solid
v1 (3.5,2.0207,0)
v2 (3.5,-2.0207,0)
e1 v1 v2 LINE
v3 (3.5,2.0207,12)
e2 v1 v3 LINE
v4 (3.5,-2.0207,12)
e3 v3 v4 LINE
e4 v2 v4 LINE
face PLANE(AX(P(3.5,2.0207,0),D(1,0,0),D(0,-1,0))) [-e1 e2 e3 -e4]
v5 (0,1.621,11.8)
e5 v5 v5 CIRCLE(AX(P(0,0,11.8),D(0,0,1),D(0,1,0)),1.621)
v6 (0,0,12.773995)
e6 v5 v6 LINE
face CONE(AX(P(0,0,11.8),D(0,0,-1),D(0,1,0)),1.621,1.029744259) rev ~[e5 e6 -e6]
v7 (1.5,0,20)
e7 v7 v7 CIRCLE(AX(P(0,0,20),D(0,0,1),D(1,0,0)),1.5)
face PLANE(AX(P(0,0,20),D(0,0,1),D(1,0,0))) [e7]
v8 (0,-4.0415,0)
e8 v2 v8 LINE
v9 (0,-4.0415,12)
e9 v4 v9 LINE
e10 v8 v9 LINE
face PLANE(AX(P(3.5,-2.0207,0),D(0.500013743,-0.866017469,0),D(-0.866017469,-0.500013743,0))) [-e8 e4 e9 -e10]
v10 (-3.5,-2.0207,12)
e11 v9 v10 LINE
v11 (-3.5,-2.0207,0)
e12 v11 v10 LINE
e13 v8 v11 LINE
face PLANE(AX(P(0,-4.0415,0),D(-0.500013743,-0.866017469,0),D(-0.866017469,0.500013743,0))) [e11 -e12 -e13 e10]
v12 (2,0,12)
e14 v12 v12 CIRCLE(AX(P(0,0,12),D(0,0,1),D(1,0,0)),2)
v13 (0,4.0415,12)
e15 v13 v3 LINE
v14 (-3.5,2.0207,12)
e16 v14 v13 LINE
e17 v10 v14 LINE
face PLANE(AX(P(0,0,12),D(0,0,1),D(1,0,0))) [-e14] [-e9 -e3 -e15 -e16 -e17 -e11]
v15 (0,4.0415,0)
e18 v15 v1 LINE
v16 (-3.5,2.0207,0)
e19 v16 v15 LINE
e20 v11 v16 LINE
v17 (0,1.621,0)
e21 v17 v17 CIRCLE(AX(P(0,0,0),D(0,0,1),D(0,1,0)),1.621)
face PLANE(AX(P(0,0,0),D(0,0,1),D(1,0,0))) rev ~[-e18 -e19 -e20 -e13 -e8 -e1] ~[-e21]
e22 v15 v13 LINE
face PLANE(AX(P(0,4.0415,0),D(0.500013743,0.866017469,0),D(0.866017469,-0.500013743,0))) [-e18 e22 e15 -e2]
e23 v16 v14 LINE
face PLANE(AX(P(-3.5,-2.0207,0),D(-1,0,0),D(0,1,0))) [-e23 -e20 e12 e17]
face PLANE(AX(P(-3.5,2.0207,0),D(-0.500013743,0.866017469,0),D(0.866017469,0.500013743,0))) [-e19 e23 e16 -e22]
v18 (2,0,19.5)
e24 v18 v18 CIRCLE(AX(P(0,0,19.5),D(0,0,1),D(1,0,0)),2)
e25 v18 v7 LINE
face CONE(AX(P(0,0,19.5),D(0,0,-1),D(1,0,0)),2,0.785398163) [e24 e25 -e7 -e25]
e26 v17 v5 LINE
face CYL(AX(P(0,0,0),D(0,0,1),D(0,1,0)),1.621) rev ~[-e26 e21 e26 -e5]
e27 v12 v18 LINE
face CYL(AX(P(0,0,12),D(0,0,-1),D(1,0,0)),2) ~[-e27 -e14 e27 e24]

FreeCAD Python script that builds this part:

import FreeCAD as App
import Part
import Sketcher
Q = App.Units.Quantity


def edges_at(feature, points):
    """Names of the edges that pass closest to the given points."""
    edges = feature.Shape.Edges
    near = lambda p: min(range(len(edges)), key=lambda i: edges[i].distToShape(Part.Vertex(*p))[0])
    return sorted({f"Edge{near(p) + 1}" for p in points})

doc = App.newDocument("Part")
body = doc.addObject("PartDesign::Body", "Body")

# Sketch on XY plane
sketch1 = body.newObject("Sketcher::SketchObject", "Sketch")
sketch1.AttachmentSupport = (doc.getObject("XY_Plane"), [""])
sketch1.MapMode = "FlatFace"
sketch1.addGeometry(Part.LineSegment(App.Vector(3.5, -2, 0), App.Vector(3.5, 2, 0)), False)
sketch1.addGeometry(Part.LineSegment(App.Vector(3.5, 2, 0), App.Vector(0, 4, 0)), False)
sketch1.addGeometry(Part.LineSegment(App.Vector(0, 4, 0), App.Vector(-3.5, 2, 0)), False)
sketch1.addGeometry(Part.LineSegment(App.Vector(-3.5, 2, 0), App.Vector(-3.5, -2, 0)), False)
sketch1.addGeometry(Part.LineSegment(App.Vector(-3.5, -2, 0), App.Vector(0, -4, 0)), False)
sketch1.addGeometry(Part.LineSegment(App.Vector(0, -4, 0), App.Vector(3.5, -2, 0)), False)
sketch1.addConstraint(Sketcher.Constraint("Coincident", 0, 2, 1, 1))
sketch1.addConstraint(Sketcher.Constraint("Coincident", 1, 2, 2, 1))
sketch1.addConstraint(Sketcher.Constraint("Coincident", 2, 2, 3, 1))
sketch1.addConstraint(Sketcher.Constraint("Coincident", 3, 2, 4, 1))
sketch1.addConstraint(Sketcher.Constraint("Coincident", 4, 2, 5, 1))
sketch1.addConstraint(Sketcher.Constraint("Coincident", 5, 2, 0, 1))
sketch1.addConstraint(Sketcher.Constraint("Vertical", 0))
sketch1.addConstraint(Sketcher.Constraint("Vertical", 3))
sketch1.addConstraint(Sketcher.Constraint("Symmetric", 0, 2, 3, 2, -1, 1))
sketch1.addConstraint(Sketcher.Constraint("Symmetric", 1, 2, 4, 2, -1, 1))
sketch1.addConstraint(Sketcher.Constraint("PointOnObject", 1, 2, -2))
sketch1.addConstraint(Sketcher.Constraint("Parallel", 2, 5))
sketch1.addConstraint(Sketcher.Constraint("Horizontal", 0, 2, 2, 2))
sketch1.addConstraint(Sketcher.Constraint("DistanceX", 2, 2, 0, 2, 7.0))
sketch1.addConstraint(Sketcher.Constraint("Angle", 1, Q("149.999 deg")))
sketch1.addConstraint(Sketcher.Constraint("DistanceY", 0, 1, 0, 2, 4.0414))
pad1 = body.newObject("PartDesign::Pad", "Pad")
pad1.Profile = sketch1
pad1.Length = 12

# Sketch on XY plane
sketch2 = body.newObject("Sketcher::SketchObject", "Sketch001")
sketch2.AttachmentSupport = (doc.getObject("XY_Plane"), [""])
sketch2.MapMode = "FlatFace"
sketch2.AttachmentOffset = App.Placement(App.Vector(0, 0, 12), App.Rotation())
sketch2.addGeometry(Part.Circle(App.Vector(0, 0, 0), App.Vector(0, 0, 1), 2), False)
sketch2.addConstraint(Sketcher.Constraint("Coincident", 0, 3, -1, 1))
sketch2.addConstraint(Sketcher.Constraint("Diameter", 0, 4.0))
pad2 = body.newObject("PartDesign::Pad", "Pad001")
pad2.Profile = sketch2
pad2.Length = 8

# Sketch on XY plane
sketch3 = body.newObject("Sketcher::SketchObject", "Sketch002")
sketch3.AttachmentSupport = (doc.getObject("XY_Plane"), [""])
sketch3.MapMode = "FlatFace"
sketch3.addGeometry(Part.Circle(App.Vector(0, 0, 0), App.Vector(0, 0, 1), 1.6), False)
sketch3.addConstraint(Sketcher.Constraint("Coincident", 0, 3, -1, 1))
sketch3.addConstraint(Sketcher.Constraint("Diameter", 0, 3.242))
doc.recompute()
hole = body.newObject("PartDesign::Hole", "Hole")
hole.Profile = sketch3
hole.ThreadType = "None"
hole.Diameter = 3.242
hole.DepthType = "Dimension"
hole.Depth = 11.8
hole.DrillPoint = "Angled"
hole.DrillPointAngle = 118
hole.Reversed = True
doc.recompute()

chamfer = body.newObject("PartDesign::Chamfer", "Chamfer")
chamfer.Base = (hole, edges_at(hole, [(-2, 0, 20)]))
chamfer.Size = 0.5

doc.recompute()
